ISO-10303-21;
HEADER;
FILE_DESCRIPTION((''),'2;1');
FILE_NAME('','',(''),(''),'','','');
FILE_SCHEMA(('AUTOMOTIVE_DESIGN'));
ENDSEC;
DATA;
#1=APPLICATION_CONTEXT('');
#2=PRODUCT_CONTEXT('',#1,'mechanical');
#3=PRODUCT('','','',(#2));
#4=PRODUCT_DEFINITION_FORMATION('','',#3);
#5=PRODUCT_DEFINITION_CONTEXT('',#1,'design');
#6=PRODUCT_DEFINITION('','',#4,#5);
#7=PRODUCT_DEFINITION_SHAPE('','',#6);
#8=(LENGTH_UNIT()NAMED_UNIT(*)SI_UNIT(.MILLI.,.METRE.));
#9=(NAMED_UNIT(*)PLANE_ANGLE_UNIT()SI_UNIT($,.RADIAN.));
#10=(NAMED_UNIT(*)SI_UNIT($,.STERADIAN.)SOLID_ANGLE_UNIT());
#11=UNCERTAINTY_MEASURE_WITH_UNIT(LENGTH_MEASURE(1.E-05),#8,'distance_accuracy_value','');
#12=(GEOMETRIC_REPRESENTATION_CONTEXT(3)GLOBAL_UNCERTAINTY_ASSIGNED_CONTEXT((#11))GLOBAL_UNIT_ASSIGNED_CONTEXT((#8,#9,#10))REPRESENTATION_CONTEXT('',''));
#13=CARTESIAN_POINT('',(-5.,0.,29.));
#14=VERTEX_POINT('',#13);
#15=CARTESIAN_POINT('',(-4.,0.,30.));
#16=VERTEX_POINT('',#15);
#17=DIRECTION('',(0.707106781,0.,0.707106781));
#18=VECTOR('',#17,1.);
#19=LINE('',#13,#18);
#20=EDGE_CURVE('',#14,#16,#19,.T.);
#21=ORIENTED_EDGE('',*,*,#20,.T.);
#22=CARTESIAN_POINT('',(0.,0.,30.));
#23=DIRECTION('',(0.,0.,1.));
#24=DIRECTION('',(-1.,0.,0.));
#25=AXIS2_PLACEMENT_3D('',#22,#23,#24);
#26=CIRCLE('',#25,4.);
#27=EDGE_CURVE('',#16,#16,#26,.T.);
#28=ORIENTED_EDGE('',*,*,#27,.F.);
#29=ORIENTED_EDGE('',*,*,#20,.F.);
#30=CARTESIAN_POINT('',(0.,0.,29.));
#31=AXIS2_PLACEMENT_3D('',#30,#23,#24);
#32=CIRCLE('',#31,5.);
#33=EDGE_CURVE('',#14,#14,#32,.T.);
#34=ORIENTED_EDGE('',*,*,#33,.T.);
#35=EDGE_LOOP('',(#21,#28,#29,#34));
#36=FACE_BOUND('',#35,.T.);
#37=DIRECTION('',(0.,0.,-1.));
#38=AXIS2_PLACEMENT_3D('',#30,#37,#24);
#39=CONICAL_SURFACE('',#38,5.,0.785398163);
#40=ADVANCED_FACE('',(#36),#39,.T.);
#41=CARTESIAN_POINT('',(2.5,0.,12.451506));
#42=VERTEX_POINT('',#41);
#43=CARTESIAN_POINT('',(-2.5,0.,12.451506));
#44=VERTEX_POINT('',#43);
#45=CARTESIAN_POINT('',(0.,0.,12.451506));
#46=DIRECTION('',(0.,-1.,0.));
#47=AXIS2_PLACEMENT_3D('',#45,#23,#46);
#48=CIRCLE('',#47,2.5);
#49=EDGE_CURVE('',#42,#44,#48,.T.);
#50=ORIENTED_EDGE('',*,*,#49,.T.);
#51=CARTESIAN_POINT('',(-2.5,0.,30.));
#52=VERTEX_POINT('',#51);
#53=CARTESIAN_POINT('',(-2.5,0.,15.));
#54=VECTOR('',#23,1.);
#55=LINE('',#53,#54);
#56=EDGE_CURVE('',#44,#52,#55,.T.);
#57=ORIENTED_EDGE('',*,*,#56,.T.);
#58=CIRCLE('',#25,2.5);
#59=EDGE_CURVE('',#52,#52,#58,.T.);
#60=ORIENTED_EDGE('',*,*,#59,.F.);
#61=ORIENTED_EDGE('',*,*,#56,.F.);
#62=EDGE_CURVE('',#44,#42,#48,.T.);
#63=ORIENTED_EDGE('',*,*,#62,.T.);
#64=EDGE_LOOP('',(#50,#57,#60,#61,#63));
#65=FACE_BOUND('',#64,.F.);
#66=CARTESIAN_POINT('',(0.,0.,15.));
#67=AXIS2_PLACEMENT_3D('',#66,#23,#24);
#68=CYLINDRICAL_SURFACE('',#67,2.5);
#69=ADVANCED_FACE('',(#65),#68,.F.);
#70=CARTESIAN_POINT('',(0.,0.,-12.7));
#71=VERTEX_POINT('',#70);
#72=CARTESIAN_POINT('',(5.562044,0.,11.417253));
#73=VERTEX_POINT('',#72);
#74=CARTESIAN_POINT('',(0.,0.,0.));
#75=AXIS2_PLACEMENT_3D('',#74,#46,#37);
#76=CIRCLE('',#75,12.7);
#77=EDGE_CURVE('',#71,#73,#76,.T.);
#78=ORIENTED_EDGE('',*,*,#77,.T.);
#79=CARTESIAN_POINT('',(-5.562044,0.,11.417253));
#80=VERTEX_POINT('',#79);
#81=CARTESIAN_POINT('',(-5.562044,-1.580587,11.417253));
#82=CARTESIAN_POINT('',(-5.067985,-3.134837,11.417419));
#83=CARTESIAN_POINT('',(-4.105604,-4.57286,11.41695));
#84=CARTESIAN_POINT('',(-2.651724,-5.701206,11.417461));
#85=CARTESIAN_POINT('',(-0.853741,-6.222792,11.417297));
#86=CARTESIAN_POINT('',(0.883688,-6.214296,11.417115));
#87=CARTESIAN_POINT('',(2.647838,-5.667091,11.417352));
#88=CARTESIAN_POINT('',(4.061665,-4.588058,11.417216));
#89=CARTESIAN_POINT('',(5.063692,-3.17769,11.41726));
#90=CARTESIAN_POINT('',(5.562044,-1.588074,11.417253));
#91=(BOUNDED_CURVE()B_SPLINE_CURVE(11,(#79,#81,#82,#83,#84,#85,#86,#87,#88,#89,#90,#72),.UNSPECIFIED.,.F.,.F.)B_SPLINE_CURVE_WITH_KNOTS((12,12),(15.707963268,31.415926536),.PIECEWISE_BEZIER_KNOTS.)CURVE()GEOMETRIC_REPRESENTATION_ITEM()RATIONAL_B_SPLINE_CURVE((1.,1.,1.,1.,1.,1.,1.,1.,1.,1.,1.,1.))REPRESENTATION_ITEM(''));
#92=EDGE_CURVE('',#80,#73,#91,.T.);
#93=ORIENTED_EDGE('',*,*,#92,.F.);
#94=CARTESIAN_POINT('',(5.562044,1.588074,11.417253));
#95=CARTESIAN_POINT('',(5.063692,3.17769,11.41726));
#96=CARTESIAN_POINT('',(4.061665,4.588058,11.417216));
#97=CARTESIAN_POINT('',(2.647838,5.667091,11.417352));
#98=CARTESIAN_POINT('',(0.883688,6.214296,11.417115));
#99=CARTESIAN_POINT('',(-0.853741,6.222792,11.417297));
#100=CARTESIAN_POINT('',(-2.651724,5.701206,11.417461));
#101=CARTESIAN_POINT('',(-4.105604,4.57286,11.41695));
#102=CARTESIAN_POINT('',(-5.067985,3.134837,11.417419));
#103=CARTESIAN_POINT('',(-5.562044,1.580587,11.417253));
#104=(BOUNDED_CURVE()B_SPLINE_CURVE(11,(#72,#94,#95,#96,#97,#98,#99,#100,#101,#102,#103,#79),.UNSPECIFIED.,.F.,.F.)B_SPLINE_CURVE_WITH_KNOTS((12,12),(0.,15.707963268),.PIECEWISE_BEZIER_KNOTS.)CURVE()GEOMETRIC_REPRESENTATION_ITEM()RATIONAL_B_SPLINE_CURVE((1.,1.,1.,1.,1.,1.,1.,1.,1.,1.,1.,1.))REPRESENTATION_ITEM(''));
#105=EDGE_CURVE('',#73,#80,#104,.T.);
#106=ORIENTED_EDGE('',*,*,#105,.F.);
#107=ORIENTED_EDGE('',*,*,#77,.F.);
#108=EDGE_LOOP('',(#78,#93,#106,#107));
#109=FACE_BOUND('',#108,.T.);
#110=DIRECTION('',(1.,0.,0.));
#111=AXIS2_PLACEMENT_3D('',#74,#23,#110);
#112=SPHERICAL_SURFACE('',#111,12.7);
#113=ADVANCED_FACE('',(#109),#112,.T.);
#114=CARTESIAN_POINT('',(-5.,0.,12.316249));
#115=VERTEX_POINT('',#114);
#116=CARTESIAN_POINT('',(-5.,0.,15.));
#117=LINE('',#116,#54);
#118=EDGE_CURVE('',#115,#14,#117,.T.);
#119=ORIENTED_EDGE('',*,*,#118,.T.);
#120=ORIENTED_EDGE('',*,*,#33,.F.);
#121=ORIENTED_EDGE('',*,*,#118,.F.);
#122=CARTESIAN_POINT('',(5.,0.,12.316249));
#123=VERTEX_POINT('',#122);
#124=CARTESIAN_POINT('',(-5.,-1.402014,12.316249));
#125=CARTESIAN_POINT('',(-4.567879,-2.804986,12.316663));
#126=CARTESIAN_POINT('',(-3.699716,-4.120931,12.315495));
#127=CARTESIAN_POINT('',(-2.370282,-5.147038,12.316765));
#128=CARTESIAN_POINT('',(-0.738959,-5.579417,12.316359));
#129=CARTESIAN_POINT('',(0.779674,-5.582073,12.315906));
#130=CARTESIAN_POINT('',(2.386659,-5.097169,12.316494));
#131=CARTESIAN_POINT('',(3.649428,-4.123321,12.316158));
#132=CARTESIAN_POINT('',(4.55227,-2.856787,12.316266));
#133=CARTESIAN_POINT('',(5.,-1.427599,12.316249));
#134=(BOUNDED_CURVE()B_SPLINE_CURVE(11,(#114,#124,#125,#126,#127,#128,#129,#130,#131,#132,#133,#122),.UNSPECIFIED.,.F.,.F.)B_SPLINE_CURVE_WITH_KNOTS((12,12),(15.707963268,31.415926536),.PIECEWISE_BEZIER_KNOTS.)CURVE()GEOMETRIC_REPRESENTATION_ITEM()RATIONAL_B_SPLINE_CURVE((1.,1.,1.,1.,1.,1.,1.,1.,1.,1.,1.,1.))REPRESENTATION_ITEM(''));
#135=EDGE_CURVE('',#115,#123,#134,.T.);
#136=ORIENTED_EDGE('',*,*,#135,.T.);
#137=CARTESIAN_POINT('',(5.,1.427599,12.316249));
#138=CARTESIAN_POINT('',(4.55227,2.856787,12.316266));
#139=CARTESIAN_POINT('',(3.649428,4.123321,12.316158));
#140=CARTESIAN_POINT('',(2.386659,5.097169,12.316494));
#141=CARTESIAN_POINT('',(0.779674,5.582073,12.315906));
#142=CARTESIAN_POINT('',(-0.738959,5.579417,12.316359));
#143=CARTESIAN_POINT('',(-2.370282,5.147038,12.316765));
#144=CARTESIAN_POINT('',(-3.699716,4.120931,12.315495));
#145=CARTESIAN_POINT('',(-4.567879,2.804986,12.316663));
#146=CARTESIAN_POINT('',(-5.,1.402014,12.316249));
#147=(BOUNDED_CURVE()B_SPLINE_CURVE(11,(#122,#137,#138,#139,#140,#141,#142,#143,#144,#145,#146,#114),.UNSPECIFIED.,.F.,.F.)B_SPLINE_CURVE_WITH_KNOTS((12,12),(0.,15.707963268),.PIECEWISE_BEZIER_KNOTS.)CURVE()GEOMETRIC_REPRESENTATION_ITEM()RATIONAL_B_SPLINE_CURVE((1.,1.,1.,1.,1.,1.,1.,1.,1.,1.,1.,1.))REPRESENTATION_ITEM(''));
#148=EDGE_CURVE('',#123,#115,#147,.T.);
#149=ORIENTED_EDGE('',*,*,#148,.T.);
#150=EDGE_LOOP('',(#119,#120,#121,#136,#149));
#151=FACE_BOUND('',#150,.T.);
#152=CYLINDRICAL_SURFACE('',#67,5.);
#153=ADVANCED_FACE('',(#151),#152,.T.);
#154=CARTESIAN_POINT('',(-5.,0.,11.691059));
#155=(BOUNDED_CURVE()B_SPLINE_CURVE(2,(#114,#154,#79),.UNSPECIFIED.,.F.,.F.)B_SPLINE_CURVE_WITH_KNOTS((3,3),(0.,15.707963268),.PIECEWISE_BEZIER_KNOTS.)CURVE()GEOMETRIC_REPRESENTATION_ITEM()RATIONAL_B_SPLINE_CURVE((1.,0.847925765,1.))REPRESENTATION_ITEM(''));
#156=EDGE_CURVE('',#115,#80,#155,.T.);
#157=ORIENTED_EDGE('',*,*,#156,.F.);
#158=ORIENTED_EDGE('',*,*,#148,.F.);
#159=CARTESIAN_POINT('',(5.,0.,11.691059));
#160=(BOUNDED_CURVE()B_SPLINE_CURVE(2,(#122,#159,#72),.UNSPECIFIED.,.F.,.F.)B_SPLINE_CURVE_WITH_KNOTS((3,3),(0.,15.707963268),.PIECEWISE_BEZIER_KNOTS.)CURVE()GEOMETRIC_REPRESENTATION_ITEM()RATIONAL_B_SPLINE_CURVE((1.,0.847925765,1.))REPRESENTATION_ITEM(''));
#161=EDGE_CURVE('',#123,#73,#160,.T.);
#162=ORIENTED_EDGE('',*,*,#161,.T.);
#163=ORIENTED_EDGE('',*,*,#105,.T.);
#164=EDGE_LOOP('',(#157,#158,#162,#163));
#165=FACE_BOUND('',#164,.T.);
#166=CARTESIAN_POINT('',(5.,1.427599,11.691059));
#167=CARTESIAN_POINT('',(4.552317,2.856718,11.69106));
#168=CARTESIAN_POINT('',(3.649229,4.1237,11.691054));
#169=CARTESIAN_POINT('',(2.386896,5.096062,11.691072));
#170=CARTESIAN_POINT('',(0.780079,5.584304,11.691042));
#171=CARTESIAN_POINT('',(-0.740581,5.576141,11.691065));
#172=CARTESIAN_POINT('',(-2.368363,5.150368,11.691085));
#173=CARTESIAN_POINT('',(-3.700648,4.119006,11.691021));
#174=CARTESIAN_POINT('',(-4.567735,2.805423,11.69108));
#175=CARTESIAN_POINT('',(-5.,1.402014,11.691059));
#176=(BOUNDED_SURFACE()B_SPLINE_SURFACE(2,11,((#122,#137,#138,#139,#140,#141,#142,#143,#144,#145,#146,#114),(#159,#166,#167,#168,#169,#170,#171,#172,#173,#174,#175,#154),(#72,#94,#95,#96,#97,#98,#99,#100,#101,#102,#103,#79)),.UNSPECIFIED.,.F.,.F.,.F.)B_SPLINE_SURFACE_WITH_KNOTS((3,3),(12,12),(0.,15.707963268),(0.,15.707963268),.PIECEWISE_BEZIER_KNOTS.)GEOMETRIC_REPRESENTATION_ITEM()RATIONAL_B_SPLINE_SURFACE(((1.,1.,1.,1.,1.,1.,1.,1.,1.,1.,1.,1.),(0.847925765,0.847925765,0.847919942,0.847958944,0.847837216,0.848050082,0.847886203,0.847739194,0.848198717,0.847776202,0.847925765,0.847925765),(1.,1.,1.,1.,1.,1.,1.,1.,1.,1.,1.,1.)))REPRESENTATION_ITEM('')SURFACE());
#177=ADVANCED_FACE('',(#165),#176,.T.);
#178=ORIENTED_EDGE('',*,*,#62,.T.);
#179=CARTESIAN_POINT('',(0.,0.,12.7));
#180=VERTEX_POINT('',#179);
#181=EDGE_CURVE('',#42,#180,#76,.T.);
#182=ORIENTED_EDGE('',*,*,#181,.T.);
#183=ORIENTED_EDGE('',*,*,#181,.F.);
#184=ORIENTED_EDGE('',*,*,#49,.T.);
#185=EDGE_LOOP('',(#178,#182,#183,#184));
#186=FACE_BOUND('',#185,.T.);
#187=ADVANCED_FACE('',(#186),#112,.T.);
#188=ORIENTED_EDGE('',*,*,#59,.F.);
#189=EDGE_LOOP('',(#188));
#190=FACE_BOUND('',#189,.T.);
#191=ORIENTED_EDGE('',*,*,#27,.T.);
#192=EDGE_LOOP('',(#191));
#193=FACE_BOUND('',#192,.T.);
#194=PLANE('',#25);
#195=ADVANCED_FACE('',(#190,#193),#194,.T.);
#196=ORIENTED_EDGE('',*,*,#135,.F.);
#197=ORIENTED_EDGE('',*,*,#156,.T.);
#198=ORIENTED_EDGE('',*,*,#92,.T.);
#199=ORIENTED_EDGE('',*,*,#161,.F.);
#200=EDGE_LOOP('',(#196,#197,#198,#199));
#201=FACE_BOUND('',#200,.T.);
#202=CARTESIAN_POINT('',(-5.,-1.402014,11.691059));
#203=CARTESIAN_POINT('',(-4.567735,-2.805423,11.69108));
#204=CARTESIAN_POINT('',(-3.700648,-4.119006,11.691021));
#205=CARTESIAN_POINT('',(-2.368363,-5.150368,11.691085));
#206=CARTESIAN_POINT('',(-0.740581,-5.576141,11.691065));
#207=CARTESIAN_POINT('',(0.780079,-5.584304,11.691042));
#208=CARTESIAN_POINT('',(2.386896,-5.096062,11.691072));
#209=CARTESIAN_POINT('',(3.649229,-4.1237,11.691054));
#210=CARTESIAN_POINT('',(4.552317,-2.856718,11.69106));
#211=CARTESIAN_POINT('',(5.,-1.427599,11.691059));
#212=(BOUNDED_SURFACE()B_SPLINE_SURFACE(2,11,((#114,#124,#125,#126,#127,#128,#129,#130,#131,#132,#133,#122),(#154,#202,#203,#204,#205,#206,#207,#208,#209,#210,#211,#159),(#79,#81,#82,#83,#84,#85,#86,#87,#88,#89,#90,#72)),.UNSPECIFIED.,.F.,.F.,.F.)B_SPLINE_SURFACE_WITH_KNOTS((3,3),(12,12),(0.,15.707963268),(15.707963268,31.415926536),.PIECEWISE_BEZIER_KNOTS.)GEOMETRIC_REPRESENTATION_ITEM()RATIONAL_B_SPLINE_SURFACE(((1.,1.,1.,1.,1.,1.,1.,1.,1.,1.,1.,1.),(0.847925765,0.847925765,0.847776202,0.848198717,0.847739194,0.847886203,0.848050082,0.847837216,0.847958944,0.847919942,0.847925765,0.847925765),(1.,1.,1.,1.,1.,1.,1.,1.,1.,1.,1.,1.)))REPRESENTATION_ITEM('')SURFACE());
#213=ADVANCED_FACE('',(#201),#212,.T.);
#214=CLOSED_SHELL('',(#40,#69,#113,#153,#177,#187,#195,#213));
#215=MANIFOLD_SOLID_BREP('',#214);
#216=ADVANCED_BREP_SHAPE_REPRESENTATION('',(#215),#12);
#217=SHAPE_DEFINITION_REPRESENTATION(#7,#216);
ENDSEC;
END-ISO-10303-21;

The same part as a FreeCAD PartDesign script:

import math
import FreeCAD as App
import Part
import Sketcher
from FreeCAD import Vector
Q = App.Units.Quantity


def edges_at(feature, points):
    """Names of the edges that pass closest to the given points."""
    edges = feature.Shape.Edges
    near = lambda p: min(range(len(edges)), key=lambda i: edges[i].distToShape(Part.Vertex(*p))[0])
    return sorted({f"Edge{near(p) + 1}" for p in points})


def add_polygon(sketch, points):
    """Adds a closed chain of lines whose ends are joined by coincident constraints."""
    first, n = sketch.GeometryCount, len(points)
    for a, b in zip(points, points[1:] + points[:1]):
        sketch.addGeometry(Part.LineSegment(App.Vector(*a, 0), App.Vector(*b, 0)), False)
    for i in range(n):
        sketch.addConstraint(Sketcher.Constraint("Coincident", first + i, 2, first + (i + 1) % n, 1))

doc = App.newDocument("Part")
body = doc.addObject("PartDesign::Body", "Body")

# Sketch on XZ plane
sketch1 = body.newObject("Sketcher::SketchObject", "Sketch")
sketch1.AttachmentSupport = (doc.getObject("XZ_Plane"), [""])
sketch1.MapMode = "FlatFace"
sketch1.addGeometry(Part.LineSegment(Vector(0, 13, 0), Vector(0, -13, 0)), False)
sketch1.addGeometry(Part.ArcOfCircle(Part.Circle(Vector(0, 0, 0), Vector(0, 0, 1), 13), math.radians(-90), math.radians(90)), False)
sketch1.addConstraint(Sketcher.Constraint("Coincident", 0, 1, 1, 2))
sketch1.addConstraint(Sketcher.Constraint("Coincident", 1, 1, 0, 2))
sketch1.addConstraint(Sketcher.Constraint("Vertical", 0))
sketch1.addConstraint(Sketcher.Constraint("Coincident", 1, 3, -1, 1))
sketch1.addConstraint(Sketcher.Constraint("PointOnObject", 0, 1, -2))
sketch1.addConstraint(Sketcher.Constraint("Radius", 1, Q("12.7 mm")))
revolution = body.newObject("PartDesign::Revolution", "Revolution")
revolution.Profile = sketch1
revolution.ReferenceAxis = (sketch1, ["V_Axis"])
revolution.Angle = 360

# Sketch on XZ plane
sketch2 = body.newObject("Sketcher::SketchObject", "Sketch001")
sketch2.AttachmentSupport = (doc.getObject("XZ_Plane"), [""])
sketch2.MapMode = "FlatFace"
add_polygon(sketch2, [(-5, 30), (-5, 0), (-2.5, 0), (-2.5, 30)])  # lines 0-3
sketch2.addConstraint(Sketcher.Constraint("Vertical", 0))
sketch2.addConstraint(Sketcher.Constraint("Horizontal", 1))
sketch2.addConstraint(Sketcher.Constraint("Vertical", 2))
sketch2.addConstraint(Sketcher.Constraint("Horizontal", 3))
sketch2.addConstraint(Sketcher.Constraint("PointOnObject", 0, 2, -1))
sketch2.addConstraint(Sketcher.Constraint("DistanceY", 0, 2, 0, 1, Q("30 mm")))
sketch2.addConstraint(Sketcher.Constraint("DistanceX", 1, 1, 1, 2, Q("2.5 mm")))
sketch2.addConstraint(Sketcher.Constraint("DistanceX", 0, 2, -1, 1, Q("5 mm")))
revolution2 = body.newObject("PartDesign::Revolution", "Revolution001")
revolution2.Profile = sketch2
revolution2.ReferenceAxis = (sketch2, ["V_Axis"])
revolution2.Angle = 360
doc.recompute()

chamfer = body.newObject("PartDesign::Chamfer", "Chamfer")
chamfer.Base = (revolution2, edges_at(revolution2, [(5, 0, 30)]))
chamfer.Size = 1
doc.recompute()

fillet = body.newObject("PartDesign::Fillet", "Fillet")
fillet.Base = (chamfer, edges_at(chamfer, [(0, 5, 11.674), (0, -5, 11.674)]))
fillet.Radius = 1

doc.recompute()
